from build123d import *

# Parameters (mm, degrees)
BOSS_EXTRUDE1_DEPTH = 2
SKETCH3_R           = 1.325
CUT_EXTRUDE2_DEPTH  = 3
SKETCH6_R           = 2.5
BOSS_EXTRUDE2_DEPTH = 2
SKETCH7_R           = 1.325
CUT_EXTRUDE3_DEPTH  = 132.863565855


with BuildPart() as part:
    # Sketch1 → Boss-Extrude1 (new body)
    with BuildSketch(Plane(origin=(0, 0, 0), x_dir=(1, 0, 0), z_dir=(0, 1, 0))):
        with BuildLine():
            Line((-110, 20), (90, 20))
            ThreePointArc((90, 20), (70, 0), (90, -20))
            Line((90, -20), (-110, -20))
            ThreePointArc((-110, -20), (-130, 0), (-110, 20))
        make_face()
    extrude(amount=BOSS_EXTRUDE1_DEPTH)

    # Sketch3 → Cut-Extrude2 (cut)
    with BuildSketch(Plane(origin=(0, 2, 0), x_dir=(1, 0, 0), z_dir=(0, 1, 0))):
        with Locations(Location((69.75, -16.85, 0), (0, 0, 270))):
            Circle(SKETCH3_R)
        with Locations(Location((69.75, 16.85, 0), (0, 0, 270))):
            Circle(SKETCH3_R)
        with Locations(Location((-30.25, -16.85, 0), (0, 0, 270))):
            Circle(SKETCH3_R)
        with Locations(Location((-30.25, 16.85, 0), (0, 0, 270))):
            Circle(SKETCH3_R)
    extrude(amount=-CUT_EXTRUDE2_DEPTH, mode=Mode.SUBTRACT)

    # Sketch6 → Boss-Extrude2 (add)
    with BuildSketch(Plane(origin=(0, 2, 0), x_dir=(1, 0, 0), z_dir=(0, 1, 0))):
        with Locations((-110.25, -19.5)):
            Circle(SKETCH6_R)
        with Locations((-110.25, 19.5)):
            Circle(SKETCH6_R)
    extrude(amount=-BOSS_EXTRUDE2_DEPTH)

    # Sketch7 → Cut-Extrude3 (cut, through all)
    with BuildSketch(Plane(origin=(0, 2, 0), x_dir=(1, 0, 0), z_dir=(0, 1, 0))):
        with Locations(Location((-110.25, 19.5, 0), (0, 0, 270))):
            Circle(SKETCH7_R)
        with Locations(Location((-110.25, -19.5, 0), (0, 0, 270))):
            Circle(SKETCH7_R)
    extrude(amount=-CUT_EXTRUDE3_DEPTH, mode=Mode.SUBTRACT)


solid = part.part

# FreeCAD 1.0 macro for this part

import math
import FreeCAD as App
import Part
import Sketcher
Q = App.Units.Quantity

doc = App.newDocument("Part")
body = doc.addObject("PartDesign::Body", "Body")

# Sketch on XZ plane
sketch1 = body.newObject("Sketcher::SketchObject", "Sketch")
sketch1.AttachmentSupport = (doc.getObject("XZ_Plane"), [""])
sketch1.MapMode = "FlatFace"
sketch1.addGeometry(Part.LineSegment(App.Vector(90, -20, 0), App.Vector(-110, -20, 0)), False)
sketch1.addGeometry(Part.ArcOfCircle(Part.Circle(App.Vector(-110, 0, 0), App.Vector(0, 0, 1), 20), math.radians(90), math.radians(270)), False)
sketch1.addGeometry(Part.LineSegment(App.Vector(-110, 20, 0), App.Vector(90, 20, 0)), False)
sketch1.addGeometry(Part.ArcOfCircle(Part.Circle(App.Vector(90, 0, 0), App.Vector(0, 0, 1), 20), math.radians(90), math.radians(270)), False)
sketch1.addConstraint(Sketcher.Constraint("Tangent", 0, 2, 1, 2))
sketch1.addConstraint(Sketcher.Constraint("Tangent", 1, 1, 2, 1))
sketch1.addConstraint(Sketcher.Constraint("Tangent", 2, 2, 3, 1))
sketch1.addConstraint(Sketcher.Constraint("Tangent", 3, 2, 0, 1))
sketch1.addConstraint(Sketcher.Constraint("Horizontal", 0))
sketch1.addConstraint(Sketcher.Constraint("Horizontal", 2))
sketch1.addConstraint(Sketcher.Constraint("PointOnObject", 1, 3, -1))
sketch1.addConstraint(Sketcher.Constraint("Radius", 1, Q("20 mm")))
sketch1.addConstraint(Sketcher.Constraint("DistanceX", 0, 2, 0, 1, Q("200 mm")))
sketch1.addConstraint(Sketcher.Constraint("DistanceX", 1, 3, -1, 1, Q("110 mm")))
pad1 = body.newObject("PartDesign::Pad", "Pad")
pad1.Profile = sketch1
pad1.Length = 2
pad1.Reversed = True

# Sketch on XZ plane
sketch2 = body.newObject("Sketcher::SketchObject", "Sketch001")
sketch2.AttachmentSupport = (doc.getObject("XZ_Plane"), [""])
sketch2.MapMode = "FlatFace"
sketch2.AttachmentOffset = App.Placement(App.Vector(0, 0, -2), App.Rotation())
sketch2.addGeometry(Part.Circle(App.Vector(69.75, 16.85, 0), App.Vector(0, 0, 1), 1.325), False)
sketch2.addGeometry(Part.Circle(App.Vector(69.75, -16.85, 0), App.Vector(0, 0, 1), 1.325), False)
sketch2.addGeometry(Part.Circle(App.Vector(-30.25, 16.85, 0), App.Vector(0, 0, 1), 1.325), False)
sketch2.addGeometry(Part.Circle(App.Vector(-30.25, -16.85, 0), App.Vector(0, 0, 1), 1.325), False)
sketch2.addConstraint(Sketcher.Constraint("Equal", 0, 1))
sketch2.addConstraint(Sketcher.Constraint("Equal", 1, 2))
sketch2.addConstraint(Sketcher.Constraint("Equal", 2, 3))
sketch2.addConstraint(Sketcher.Constraint("Symmetric", 0, 3, 1, 3, -1))
sketch2.addConstraint(Sketcher.Constraint("Symmetric", 2, 3, 3, 3, -1))
sketch2.addConstraint(Sketcher.Constraint("Horizontal", 0, 3, 2, 3))
sketch2.addConstraint(Sketcher.Constraint("Diameter", 0, Q("2.65 mm")))
sketch2.addConstraint(Sketcher.Constraint("DistanceX", 2, 3, 0, 3, Q("100 mm")))
sketch2.addConstraint(Sketcher.Constraint("DistanceY", 1, 3, 0, 3, Q("33.7 mm")))
sketch2.addConstraint(Sketcher.Constraint("DistanceX", -1, 1, 0, 3, Q("69.75 mm")))
pocket1 = body.newObject("PartDesign::Pocket", "Pocket")
pocket1.Profile = sketch2
pocket1.Length = 3
pocket1.Reversed = True

# Sketch on XZ plane
sketch3 = body.newObject("Sketcher::SketchObject", "Sketch002")
sketch3.AttachmentSupport = (doc.getObject("XZ_Plane"), [""])
sketch3.MapMode = "FlatFace"
sketch3.AttachmentOffset = App.Placement(App.Vector(0, 0, -2), App.Rotation())
sketch3.addGeometry(Part.Circle(App.Vector(-110.25, 19.5, 0), App.Vector(0, 0, 1), 2.5), False)
sketch3.addGeometry(Part.Circle(App.Vector(-110.25, -19.5, 0), App.Vector(0, 0, 1), 2.5), False)
sketch3.addConstraint(Sketcher.Constraint("Equal", 0, 1))
sketch3.addConstraint(Sketcher.Constraint("Symmetric", 0, 3, 1, 3, -1))
sketch3.addConstraint(Sketcher.Constraint("Diameter", 0, Q("5 mm")))
sketch3.addConstraint(Sketcher.Constraint("DistanceY", 1, 3, 0, 3, Q("39 mm")))
sketch3.addConstraint(Sketcher.Constraint("DistanceX", 0, 3, -1, 1, Q("110.25 mm")))
pad2 = body.newObject("PartDesign::Pad", "Pad001")
pad2.Profile = sketch3
pad2.Length = 2

# Sketch on XZ plane
sketch4 = body.newObject("Sketcher::SketchObject", "Sketch003")
sketch4.AttachmentSupport = (doc.getObject("XZ_Plane"), [""])
sketch4.MapMode = "FlatFace"
sketch4.AttachmentOffset = App.Placement(App.Vector(0, 0, -2), App.Rotation())
sketch4.addGeometry(Part.Circle(App.Vector(-110.25, -19.5, 0), App.Vector(0, 0, 1), 1.325), False)
sketch4.addGeometry(Part.Circle(App.Vector(-110.25, 19.5, 0), App.Vector(0, 0, 1), 1.325), False)
sketch4.addConstraint(Sketcher.Constraint("Equal", 0, 1))
sketch4.addConstraint(Sketcher.Constraint("Symmetric", 0, 3, 1, 3, -1))
sketch4.addConstraint(Sketcher.Constraint("Diameter", 0, Q("2.65 mm")))
sketch4.addConstraint(Sketcher.Constraint("DistanceY", 0, 3, 1, 3, Q("39 mm")))
sketch4.addConstraint(Sketcher.Constraint("DistanceX", 0, 3, -1, 1, Q("110.25 mm")))
pocket2 = body.newObject("PartDesign::Pocket", "Pocket001")
pocket2.Profile = sketch4
pocket2.Type = "ThroughAll"
pocket2.Reversed = True

doc.recompute()
